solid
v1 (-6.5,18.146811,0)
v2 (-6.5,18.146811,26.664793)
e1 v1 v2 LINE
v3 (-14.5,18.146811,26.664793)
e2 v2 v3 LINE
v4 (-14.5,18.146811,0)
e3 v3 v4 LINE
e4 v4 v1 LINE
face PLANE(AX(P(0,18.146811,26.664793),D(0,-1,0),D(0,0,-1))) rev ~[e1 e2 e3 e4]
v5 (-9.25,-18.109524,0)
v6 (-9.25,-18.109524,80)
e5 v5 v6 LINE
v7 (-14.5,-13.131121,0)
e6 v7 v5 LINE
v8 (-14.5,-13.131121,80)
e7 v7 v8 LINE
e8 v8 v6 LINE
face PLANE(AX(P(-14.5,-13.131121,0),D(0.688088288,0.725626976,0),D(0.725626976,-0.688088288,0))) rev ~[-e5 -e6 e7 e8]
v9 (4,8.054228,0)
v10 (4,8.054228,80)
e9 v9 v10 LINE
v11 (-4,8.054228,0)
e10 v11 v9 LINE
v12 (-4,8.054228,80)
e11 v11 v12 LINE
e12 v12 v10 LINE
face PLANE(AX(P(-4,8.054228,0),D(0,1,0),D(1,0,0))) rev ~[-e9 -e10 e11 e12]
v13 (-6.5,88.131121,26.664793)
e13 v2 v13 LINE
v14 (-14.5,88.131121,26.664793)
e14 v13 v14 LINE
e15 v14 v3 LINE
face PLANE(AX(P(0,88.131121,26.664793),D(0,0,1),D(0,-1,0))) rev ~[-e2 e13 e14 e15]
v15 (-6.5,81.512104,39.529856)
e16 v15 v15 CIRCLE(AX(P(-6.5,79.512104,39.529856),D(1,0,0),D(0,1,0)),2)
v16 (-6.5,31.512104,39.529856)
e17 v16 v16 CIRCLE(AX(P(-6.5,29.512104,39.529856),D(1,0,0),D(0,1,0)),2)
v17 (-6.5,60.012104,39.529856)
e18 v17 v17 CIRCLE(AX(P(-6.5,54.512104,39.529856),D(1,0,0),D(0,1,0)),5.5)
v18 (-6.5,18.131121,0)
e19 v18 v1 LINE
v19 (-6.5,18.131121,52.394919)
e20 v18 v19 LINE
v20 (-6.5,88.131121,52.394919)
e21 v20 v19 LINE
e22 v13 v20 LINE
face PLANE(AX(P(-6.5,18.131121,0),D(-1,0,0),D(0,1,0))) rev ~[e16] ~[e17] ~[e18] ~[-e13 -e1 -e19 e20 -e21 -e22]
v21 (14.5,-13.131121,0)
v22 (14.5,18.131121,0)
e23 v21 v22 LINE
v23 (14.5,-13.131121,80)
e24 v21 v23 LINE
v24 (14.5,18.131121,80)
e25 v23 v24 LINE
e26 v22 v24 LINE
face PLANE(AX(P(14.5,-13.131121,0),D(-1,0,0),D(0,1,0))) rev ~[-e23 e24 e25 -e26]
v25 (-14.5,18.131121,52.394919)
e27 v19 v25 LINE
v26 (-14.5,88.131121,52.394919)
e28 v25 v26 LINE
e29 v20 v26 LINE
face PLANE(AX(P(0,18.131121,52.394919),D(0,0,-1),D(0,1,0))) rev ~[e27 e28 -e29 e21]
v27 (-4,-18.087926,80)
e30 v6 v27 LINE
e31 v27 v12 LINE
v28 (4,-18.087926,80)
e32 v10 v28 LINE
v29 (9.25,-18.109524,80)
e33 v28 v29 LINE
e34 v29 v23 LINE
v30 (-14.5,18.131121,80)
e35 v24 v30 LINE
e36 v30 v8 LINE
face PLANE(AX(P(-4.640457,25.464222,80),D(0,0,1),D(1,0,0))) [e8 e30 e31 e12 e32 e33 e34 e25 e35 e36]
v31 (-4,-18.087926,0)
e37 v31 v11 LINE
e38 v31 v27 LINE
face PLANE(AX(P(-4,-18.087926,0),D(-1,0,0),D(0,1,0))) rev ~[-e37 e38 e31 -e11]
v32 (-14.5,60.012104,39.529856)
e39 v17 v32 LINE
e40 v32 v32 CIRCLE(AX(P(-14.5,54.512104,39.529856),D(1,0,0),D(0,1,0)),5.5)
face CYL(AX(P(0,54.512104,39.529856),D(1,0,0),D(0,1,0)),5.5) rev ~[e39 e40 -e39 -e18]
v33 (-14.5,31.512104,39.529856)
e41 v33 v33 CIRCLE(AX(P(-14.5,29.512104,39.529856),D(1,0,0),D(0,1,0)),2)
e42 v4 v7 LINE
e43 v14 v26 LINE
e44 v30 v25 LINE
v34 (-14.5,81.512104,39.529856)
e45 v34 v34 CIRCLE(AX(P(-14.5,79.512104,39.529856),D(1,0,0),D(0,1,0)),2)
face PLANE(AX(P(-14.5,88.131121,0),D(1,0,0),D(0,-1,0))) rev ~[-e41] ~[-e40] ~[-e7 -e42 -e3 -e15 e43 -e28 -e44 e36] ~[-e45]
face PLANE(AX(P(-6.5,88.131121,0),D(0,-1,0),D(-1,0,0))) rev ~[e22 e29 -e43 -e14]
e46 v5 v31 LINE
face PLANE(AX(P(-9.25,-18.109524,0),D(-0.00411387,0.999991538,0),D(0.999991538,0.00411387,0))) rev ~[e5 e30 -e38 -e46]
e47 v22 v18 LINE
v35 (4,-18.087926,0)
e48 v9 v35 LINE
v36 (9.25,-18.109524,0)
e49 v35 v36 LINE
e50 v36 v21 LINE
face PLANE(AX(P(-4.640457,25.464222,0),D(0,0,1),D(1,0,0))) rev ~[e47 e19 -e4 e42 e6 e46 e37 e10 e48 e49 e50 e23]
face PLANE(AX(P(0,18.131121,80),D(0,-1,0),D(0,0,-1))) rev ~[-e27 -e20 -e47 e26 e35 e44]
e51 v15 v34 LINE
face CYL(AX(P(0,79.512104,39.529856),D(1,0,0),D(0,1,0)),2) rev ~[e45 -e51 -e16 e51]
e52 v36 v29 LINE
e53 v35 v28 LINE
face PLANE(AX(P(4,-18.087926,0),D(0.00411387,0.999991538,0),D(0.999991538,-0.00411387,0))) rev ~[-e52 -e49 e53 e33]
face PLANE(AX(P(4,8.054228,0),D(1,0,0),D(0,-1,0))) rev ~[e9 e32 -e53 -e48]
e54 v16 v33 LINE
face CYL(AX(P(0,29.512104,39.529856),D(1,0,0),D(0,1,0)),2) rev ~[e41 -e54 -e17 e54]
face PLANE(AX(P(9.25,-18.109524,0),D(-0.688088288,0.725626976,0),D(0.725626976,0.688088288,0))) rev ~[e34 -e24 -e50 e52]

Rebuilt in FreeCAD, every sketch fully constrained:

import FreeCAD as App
import Part
import Sketcher
from FreeCAD import Vector
Q = App.Units.Quantity

doc = App.newDocument("Part")
params = doc.addObject("Spreadsheet::Sheet", "Params")
for row, (alias, value) in enumerate([
    ("sketch1_width", "8 mm"),
    ("sketch1_width2", "21 mm"),
    ("sketch1_height", "70 mm"),
    ("pad1_length", "80 mm"),
    ("sketch2_diameter", "4 mm"),
    ("sketch2_diameter2", "11 mm"),
    ("sketch2_width", "70 mm"),
    ("pocket1_length", "25 mm"),
], start=1):
    params.set(f"A{row}", alias)
    params.set(f"B{row}", "=" + value)
    params.setAlias(f"B{row}", alias)

body = doc.addObject("PartDesign::Body", "Body")

# Sketch on XY plane
sketch1 = doc.addObject("Sketcher::SketchObject", "Sketch")
body.addObject(sketch1)
sketch1.AttachmentSupport = (doc.XY_Plane, [""])
sketch1.MapMode = "FlatFace"
sketch1.addGeometry(Part.LineSegment(Vector(-14.5, 88.131121, 0), Vector(-14.5, -13.131121, 0)), False)
sketch1.addGeometry(Part.LineSegment(Vector(-14.5, -13.131121, 0), Vector(-9.25, -18.109524, 0)), False)
sketch1.addGeometry(Part.LineSegment(Vector(-9.25, -18.109524, 0), Vector(-4, -18.087926, 0)), False)
sketch1.addGeometry(Part.LineSegment(Vector(-4, -18.087926, 0), Vector(-4, 8.054228, 0)), False)
sketch1.addGeometry(Part.LineSegment(Vector(-4, 8.054228, 0), Vector(4, 8.054228, 0)), False)
sketch1.addGeometry(Part.LineSegment(Vector(4, 8.054228, 0), Vector(4, -18.087926, 0)), False)
sketch1.addGeometry(Part.LineSegment(Vector(4, -18.087926, 0), Vector(9.25, -18.109524, 0)), False)
sketch1.addGeometry(Part.LineSegment(Vector(9.25, -18.109524, 0), Vector(14.5, -13.131121, 0)), False)
sketch1.addGeometry(Part.LineSegment(Vector(14.5, -13.131121, 0), Vector(14.5, 18.131121, 0)), False)
sketch1.addGeometry(Part.LineSegment(Vector(14.5, 18.131121, 0), Vector(-6.5, 18.131121, 0)), False)
sketch1.addGeometry(Part.LineSegment(Vector(-6.5, 18.131121, 0), Vector(-6.5, 88.131121, 0)), False)
sketch1.addGeometry(Part.LineSegment(Vector(-6.5, 88.131121, 0), Vector(-14.5, 88.131121, 0)), False)
sketch1.addConstraint(Sketcher.Constraint("Coincident", 0, 2, 1, 1))
sketch1.addConstraint(Sketcher.Constraint("Coincident", 1, 2, 2, 1))
sketch1.addConstraint(Sketcher.Constraint("Coincident", 2, 2, 3, 1))
sketch1.addConstraint(Sketcher.Constraint("Coincident", 3, 2, 4, 1))
sketch1.addConstraint(Sketcher.Constraint("Coincident", 4, 2, 5, 1))
sketch1.addConstraint(Sketcher.Constraint("Coincident", 5, 2, 6, 1))
sketch1.addConstraint(Sketcher.Constraint("Coincident", 6, 2, 7, 1))
sketch1.addConstraint(Sketcher.Constraint("Coincident", 7, 2, 8, 1))
sketch1.addConstraint(Sketcher.Constraint("Coincident", 8, 2, 9, 1))
sketch1.addConstraint(Sketcher.Constraint("Coincident", 9, 2, 10, 1))
sketch1.addConstraint(Sketcher.Constraint("Coincident", 10, 2, 11, 1))
sketch1.addConstraint(Sketcher.Constraint("Coincident", 11, 2, 0, 1))
sketch1.addConstraint(Sketcher.Constraint("Vertical", 0))
sketch1.addConstraint(Sketcher.Constraint("Vertical", 3))
sketch1.addConstraint(Sketcher.Constraint("Horizontal", 4))
sketch1.addConstraint(Sketcher.Constraint("Vertical", 5))
sketch1.addConstraint(Sketcher.Constraint("Vertical", 8))
sketch1.addConstraint(Sketcher.Constraint("Horizontal", 9))
sketch1.addConstraint(Sketcher.Constraint("Vertical", 10))
sketch1.addConstraint(Sketcher.Constraint("Horizontal", 11))
sketch1.addConstraint(Sketcher.Constraint("Symmetric", 2, 2, 5, 2, -2))
sketch1.addConstraint(Sketcher.Constraint("Symmetric", 1, 2, 6, 2, -2))
sketch1.addConstraint(Sketcher.Constraint("Symmetric", 0, 2, 7, 2, -2))
sketch1.addConstraint(Sketcher.Constraint("Equal", 4, 11))
sketch1.addConstraint(Sketcher.Constraint("DistanceX", 4, 1, 4, 2, Q("8 mm")))
sketch1.addConstraint(Sketcher.Constraint("DistanceX", 9, 2, 9, 1, Q("21 mm")))
sketch1.addConstraint(Sketcher.Constraint("DistanceY", 10, 1, 10, 2, Q("70 mm")))
sketch1.addConstraint(Sketcher.Constraint("DistanceX", 1, 2, 6, 2, Q("18.5 mm")))
sketch1.addConstraint(Sketcher.Constraint("DistanceY", 0, 2, 0, 1, Q("101.262242 mm")))
sketch1.addConstraint(Sketcher.Constraint("DistanceY", 1, 2, 2, 2, Q("0.021598 mm")))
sketch1.addConstraint(Sketcher.Constraint("DistanceY", 3, 1, 3, 2, Q("26.142154 mm")))
sketch1.addConstraint(Sketcher.Constraint("DistanceY", 0, 2, -1, 1, Q("13.131121 mm")))
sketch1.addConstraint(Sketcher.Constraint("DistanceY", 0, 2, 3, 2, Q("21.185349 mm")))
sketch1.setExpression("Constraints[24]", "Params.sketch1_width")
sketch1.setExpression("Constraints[25]", "Params.sketch1_width2")
sketch1.setExpression("Constraints[26]", "Params.sketch1_height")
pad1 = doc.addObject("PartDesign::Pad", "Pad")
body.addObject(pad1)
pad1.Profile = sketch1
pad1.setExpression("Length", "Params.pad1_length")

# Sketch on YZ plane
sketch2 = doc.addObject("Sketcher::SketchObject", "Sketch001")
body.addObject(sketch2)
sketch2.AttachmentSupport = (doc.YZ_Plane, [""])
sketch2.MapMode = "FlatFace"
sketch2.addGeometry(Part.LineSegment(Vector(88.131121, 52.394919, 0), Vector(88.131121, 80, 0)), False)
sketch2.addGeometry(Part.LineSegment(Vector(88.131121, 80, 0), Vector(18.131121, 80, 0)), False)
sketch2.addGeometry(Part.LineSegment(Vector(18.131121, 80, 0), Vector(18.131121, 52.394919, 0)), False)
sketch2.addGeometry(Part.LineSegment(Vector(18.131121, 52.394919, 0), Vector(88.131121, 52.394919, 0)), False)
sketch2.addGeometry(Part.LineSegment(Vector(88.131121, -0.940287, 0), Vector(88.131121, 26.664793, 0)), False)
sketch2.addGeometry(Part.LineSegment(Vector(88.131121, 26.664793, 0), Vector(18.146811, 26.664793, 0)), False)
sketch2.addGeometry(Part.LineSegment(Vector(18.146811, 26.664793, 0), Vector(18.146811, -0.940287, 0)), False)
sketch2.addGeometry(Part.LineSegment(Vector(18.146811, -0.940287, 0), Vector(88.131121, -0.940287, 0)), False)
sketch2.addGeometry(Part.Circle(Vector(79.512104, 39.529856, 0), Vector(0, 0, 1), 2), False)
sketch2.addGeometry(Part.Circle(Vector(54.512104, 39.529856, 0), Vector(0, 0, 1), 5.5), False)
sketch2.addGeometry(Part.Circle(Vector(29.512104, 39.529856, 0), Vector(0, 0, 1), 2), False)
sketch2.addConstraint(Sketcher.Constraint("Coincident", 0, 2, 1, 1))
sketch2.addConstraint(Sketcher.Constraint("Coincident", 1, 2, 2, 1))
sketch2.addConstraint(Sketcher.Constraint("Coincident", 2, 2, 3, 1))
sketch2.addConstraint(Sketcher.Constraint("Coincident", 3, 2, 0, 1))
sketch2.addConstraint(Sketcher.Constraint("Coincident", 4, 2, 5, 1))
sketch2.addConstraint(Sketcher.Constraint("Coincident", 5, 2, 6, 1))
sketch2.addConstraint(Sketcher.Constraint("Coincident", 6, 2, 7, 1))
sketch2.addConstraint(Sketcher.Constraint("Coincident", 7, 2, 4, 1))
sketch2.addConstraint(Sketcher.Constraint("Vertical", 0))
sketch2.addConstraint(Sketcher.Constraint("Horizontal", 1))
sketch2.addConstraint(Sketcher.Constraint("Vertical", 2))
sketch2.addConstraint(Sketcher.Constraint("Horizontal", 3))
sketch2.addConstraint(Sketcher.Constraint("Vertical", 4))
sketch2.addConstraint(Sketcher.Constraint("Horizontal", 5))
sketch2.addConstraint(Sketcher.Constraint("Vertical", 6))
sketch2.addConstraint(Sketcher.Constraint("Horizontal", 7))
sketch2.addConstraint(Sketcher.Constraint("Equal", 8, 10))
sketch2.addConstraint(Sketcher.Constraint("Horizontal", 8, 3, 9, 3))
sketch2.addConstraint(Sketcher.Constraint("Horizontal", 9, 3, 10, 3))
sketch2.addConstraint(Sketcher.Constraint("Vertical", 3, 2, 4, 2))
sketch2.addConstraint(Sketcher.Constraint("Equal", 2, 4))
sketch2.addConstraint(Sketcher.Constraint("Diameter", 8, Q("4 mm")))
sketch2.addConstraint(Sketcher.Constraint("Diameter", 9, Q("11 mm")))
sketch2.addConstraint(Sketcher.Constraint("DistanceX", 1, 2, 1, 1, Q("70 mm")))
sketch2.addConstraint(Sketcher.Constraint("DistanceY", -1, 1, 0, 2, Q("80 mm")))
sketch2.addConstraint(Sketcher.Constraint("DistanceX", 9, 3, 8, 3, Q("25 mm")))
sketch2.addConstraint(Sketcher.Constraint("DistanceX", 10, 3, 9, 3, Q("25 mm")))
sketch2.addConstraint(Sketcher.Constraint("DistanceX", 5, 2, 5, 1, Q("69.98431 mm")))
sketch2.addConstraint(Sketcher.Constraint("DistanceY", 0, 1, 0, 2, Q("27.605081 mm")))
sketch2.addConstraint(Sketcher.Constraint("DistanceX", -1, 1, 0, 2, Q("88.131121 mm")))
sketch2.addConstraint(Sketcher.Constraint("DistanceX", -1, 1, 8, 3, Q("79.512104 mm")))
sketch2.addConstraint(Sketcher.Constraint("DistanceY", -1, 1, 8, 3, Q("39.529856 mm")))
sketch2.addConstraint(Sketcher.Constraint("DistanceY", -1, 1, 4, 2, Q("26.664793 mm")))
sketch2.setExpression("Constraints[21]", "Params.sketch2_diameter")
sketch2.setExpression("Constraints[22]", "Params.sketch2_diameter2")
sketch2.setExpression("Constraints[23]", "Params.sketch2_width")
pocket1 = doc.addObject("PartDesign::Pocket", "Pocket")
body.addObject(pocket1)
pocket1.Profile = sketch2
pocket1.setExpression("Length", "Params.pocket1_length")

doc.recompute()
